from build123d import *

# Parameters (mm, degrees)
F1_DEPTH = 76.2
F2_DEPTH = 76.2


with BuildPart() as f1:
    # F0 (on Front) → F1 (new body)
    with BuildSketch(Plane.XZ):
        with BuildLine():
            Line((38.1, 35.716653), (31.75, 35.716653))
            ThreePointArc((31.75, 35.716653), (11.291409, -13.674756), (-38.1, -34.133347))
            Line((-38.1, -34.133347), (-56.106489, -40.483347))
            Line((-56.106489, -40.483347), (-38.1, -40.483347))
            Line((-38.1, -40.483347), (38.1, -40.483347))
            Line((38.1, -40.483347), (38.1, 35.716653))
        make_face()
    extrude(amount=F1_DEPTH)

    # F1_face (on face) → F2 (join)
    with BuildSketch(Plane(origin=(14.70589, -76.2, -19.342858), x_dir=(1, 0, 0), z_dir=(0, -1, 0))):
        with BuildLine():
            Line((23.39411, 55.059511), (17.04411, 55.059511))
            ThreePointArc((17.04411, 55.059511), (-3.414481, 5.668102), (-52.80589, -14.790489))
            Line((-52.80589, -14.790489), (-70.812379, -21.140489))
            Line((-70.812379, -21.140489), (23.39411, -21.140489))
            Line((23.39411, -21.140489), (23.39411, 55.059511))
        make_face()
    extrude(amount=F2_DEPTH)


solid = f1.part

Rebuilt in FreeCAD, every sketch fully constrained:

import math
import FreeCAD as App
import Part
import Sketcher
from FreeCAD import Vector
Q = App.Units.Quantity

doc = App.newDocument("Part")
body = doc.addObject("PartDesign::Body", "Body")

# Sketch on XZ plane
sketch1 = doc.addObject("Sketcher::SketchObject", "Sketch")
body.addObject(sketch1)
sketch1.AttachmentSupport = (doc.XZ_Plane, [""])
sketch1.MapMode = "FlatFace"
sketch1.addGeometry(Part.LineSegment(Vector(38, 36, 0), Vector(32, 36, 0)), False)
sketch1.addGeometry(Part.ArcOfCircle(Part.Circle(Vector(-38, 36, 0), Vector(0, 0, 1), 70), math.radians(-90), math.radians(0)), False)
sketch1.addGeometry(Part.LineSegment(Vector(-38, -34, 0), Vector(-56, -40, 0)), False)
sketch1.addGeometry(Part.LineSegment(Vector(-56, -40, 0), Vector(38, -40, 0)), False)
sketch1.addGeometry(Part.LineSegment(Vector(38, -40, 0), Vector(38, 36, 0)), False)
sketch1.addConstraint(Sketcher.Constraint("Coincident", 0, 2, 1, 2))
sketch1.addConstraint(Sketcher.Constraint("Coincident", 1, 1, 2, 1))
sketch1.addConstraint(Sketcher.Constraint("Coincident", 2, 2, 3, 1))
sketch1.addConstraint(Sketcher.Constraint("Coincident", 3, 2, 4, 1))
sketch1.addConstraint(Sketcher.Constraint("Coincident", 4, 2, 0, 1))
sketch1.addConstraint(Sketcher.Constraint("Horizontal", 0))
sketch1.addConstraint(Sketcher.Constraint("Horizontal", 3))
sketch1.addConstraint(Sketcher.Constraint("Vertical", 4))
sketch1.addConstraint(Sketcher.Constraint("Horizontal", 1, 3, 0, 2))
sketch1.addConstraint(Sketcher.Constraint("DistanceY", 4, 1, 4, 2, Q("3 in")))
sketch1.addConstraint(Sketcher.Constraint("Radius", 1, Q("2.75 in")))
sketch1.addConstraint(Sketcher.Constraint("DistanceX", 1, 1, 3, 2, Q("3 in")))
sketch1.addConstraint(Sketcher.Constraint("DistanceX", 1, 3, 3, 2, Q("3 in")))
sketch1.addConstraint(Sketcher.Constraint("DistanceX", 1, 3, -1, 1, Q("1.5 in")))
sketch1.addConstraint(Sketcher.Constraint("DistanceX", 3, 1, 3, 2, Q("94.206489 mm")))
sketch1.addConstraint(Sketcher.Constraint("DistanceY", -1, 1, 1, 3, Q("35.716652 mm")))
pad1 = doc.addObject("PartDesign::Pad", "Pad")
body.addObject(pad1)
pad1.Profile = sketch1
pad1.Length = Q("3 in")

# Sketch on XZ plane
sketch2 = doc.addObject("Sketcher::SketchObject", "Sketch001")
body.addObject(sketch2)
sketch2.AttachmentSupport = (doc.XZ_Plane, [""])
sketch2.MapMode = "FlatFace"
sketch2.AttachmentOffset = App.Placement(Vector(0, 0, 3 * 25.4), App.Rotation())
sketch2.addGeometry(Part.LineSegment(Vector(38, 36, 0), Vector(32, 36, 0)), False)
sketch2.addGeometry(Part.ArcOfCircle(Part.Circle(Vector(-38, 36, 0), Vector(0, 0, 1), 70), math.radians(-90), math.radians(0)), False)
sketch2.addGeometry(Part.LineSegment(Vector(-38, -34, 0), Vector(-56, -40, 0)), False)
sketch2.addGeometry(Part.LineSegment(Vector(-56, -40, 0), Vector(38, -40, 0)), False)
sketch2.addGeometry(Part.LineSegment(Vector(38, -40, 0), Vector(38, 36, 0)), False)
sketch2.addConstraint(Sketcher.Constraint("Coincident", 0, 2, 1, 2))
sketch2.addConstraint(Sketcher.Constraint("Coincident", 1, 1, 2, 1))
sketch2.addConstraint(Sketcher.Constraint("Coincident", 2, 2, 3, 1))
sketch2.addConstraint(Sketcher.Constraint("Coincident", 3, 2, 4, 1))
sketch2.addConstraint(Sketcher.Constraint("Coincident", 4, 2, 0, 1))
sketch2.addConstraint(Sketcher.Constraint("Horizontal", 0))
sketch2.addConstraint(Sketcher.Constraint("Horizontal", 3))
sketch2.addConstraint(Sketcher.Constraint("Vertical", 4))
sketch2.addConstraint(Sketcher.Constraint("Horizontal", 1, 3, 0, 2))
sketch2.addConstraint(Sketcher.Constraint("DistanceY", 4, 1, 4, 2, Q("3 in")))
sketch2.addConstraint(Sketcher.Constraint("Radius", 1, Q("2.75 in")))
sketch2.addConstraint(Sketcher.Constraint("DistanceX", 1, 1, 3, 2, Q("3 in")))
sketch2.addConstraint(Sketcher.Constraint("DistanceX", 1, 3, 3, 2, Q("3 in")))
sketch2.addConstraint(Sketcher.Constraint("DistanceX", 1, 3, -1, 1, Q("1.5 in")))
sketch2.addConstraint(Sketcher.Constraint("DistanceX", 3, 1, 3, 2, Q("94.206489 mm")))
sketch2.addConstraint(Sketcher.Constraint("DistanceY", -1, 1, 1, 3, Q("35.716652 mm")))
pad2 = doc.addObject("PartDesign::Pad", "Pad001")
body.addObject(pad2)
pad2.Profile = sketch2
pad2.Length = Q("3 in")

doc.recompute()
